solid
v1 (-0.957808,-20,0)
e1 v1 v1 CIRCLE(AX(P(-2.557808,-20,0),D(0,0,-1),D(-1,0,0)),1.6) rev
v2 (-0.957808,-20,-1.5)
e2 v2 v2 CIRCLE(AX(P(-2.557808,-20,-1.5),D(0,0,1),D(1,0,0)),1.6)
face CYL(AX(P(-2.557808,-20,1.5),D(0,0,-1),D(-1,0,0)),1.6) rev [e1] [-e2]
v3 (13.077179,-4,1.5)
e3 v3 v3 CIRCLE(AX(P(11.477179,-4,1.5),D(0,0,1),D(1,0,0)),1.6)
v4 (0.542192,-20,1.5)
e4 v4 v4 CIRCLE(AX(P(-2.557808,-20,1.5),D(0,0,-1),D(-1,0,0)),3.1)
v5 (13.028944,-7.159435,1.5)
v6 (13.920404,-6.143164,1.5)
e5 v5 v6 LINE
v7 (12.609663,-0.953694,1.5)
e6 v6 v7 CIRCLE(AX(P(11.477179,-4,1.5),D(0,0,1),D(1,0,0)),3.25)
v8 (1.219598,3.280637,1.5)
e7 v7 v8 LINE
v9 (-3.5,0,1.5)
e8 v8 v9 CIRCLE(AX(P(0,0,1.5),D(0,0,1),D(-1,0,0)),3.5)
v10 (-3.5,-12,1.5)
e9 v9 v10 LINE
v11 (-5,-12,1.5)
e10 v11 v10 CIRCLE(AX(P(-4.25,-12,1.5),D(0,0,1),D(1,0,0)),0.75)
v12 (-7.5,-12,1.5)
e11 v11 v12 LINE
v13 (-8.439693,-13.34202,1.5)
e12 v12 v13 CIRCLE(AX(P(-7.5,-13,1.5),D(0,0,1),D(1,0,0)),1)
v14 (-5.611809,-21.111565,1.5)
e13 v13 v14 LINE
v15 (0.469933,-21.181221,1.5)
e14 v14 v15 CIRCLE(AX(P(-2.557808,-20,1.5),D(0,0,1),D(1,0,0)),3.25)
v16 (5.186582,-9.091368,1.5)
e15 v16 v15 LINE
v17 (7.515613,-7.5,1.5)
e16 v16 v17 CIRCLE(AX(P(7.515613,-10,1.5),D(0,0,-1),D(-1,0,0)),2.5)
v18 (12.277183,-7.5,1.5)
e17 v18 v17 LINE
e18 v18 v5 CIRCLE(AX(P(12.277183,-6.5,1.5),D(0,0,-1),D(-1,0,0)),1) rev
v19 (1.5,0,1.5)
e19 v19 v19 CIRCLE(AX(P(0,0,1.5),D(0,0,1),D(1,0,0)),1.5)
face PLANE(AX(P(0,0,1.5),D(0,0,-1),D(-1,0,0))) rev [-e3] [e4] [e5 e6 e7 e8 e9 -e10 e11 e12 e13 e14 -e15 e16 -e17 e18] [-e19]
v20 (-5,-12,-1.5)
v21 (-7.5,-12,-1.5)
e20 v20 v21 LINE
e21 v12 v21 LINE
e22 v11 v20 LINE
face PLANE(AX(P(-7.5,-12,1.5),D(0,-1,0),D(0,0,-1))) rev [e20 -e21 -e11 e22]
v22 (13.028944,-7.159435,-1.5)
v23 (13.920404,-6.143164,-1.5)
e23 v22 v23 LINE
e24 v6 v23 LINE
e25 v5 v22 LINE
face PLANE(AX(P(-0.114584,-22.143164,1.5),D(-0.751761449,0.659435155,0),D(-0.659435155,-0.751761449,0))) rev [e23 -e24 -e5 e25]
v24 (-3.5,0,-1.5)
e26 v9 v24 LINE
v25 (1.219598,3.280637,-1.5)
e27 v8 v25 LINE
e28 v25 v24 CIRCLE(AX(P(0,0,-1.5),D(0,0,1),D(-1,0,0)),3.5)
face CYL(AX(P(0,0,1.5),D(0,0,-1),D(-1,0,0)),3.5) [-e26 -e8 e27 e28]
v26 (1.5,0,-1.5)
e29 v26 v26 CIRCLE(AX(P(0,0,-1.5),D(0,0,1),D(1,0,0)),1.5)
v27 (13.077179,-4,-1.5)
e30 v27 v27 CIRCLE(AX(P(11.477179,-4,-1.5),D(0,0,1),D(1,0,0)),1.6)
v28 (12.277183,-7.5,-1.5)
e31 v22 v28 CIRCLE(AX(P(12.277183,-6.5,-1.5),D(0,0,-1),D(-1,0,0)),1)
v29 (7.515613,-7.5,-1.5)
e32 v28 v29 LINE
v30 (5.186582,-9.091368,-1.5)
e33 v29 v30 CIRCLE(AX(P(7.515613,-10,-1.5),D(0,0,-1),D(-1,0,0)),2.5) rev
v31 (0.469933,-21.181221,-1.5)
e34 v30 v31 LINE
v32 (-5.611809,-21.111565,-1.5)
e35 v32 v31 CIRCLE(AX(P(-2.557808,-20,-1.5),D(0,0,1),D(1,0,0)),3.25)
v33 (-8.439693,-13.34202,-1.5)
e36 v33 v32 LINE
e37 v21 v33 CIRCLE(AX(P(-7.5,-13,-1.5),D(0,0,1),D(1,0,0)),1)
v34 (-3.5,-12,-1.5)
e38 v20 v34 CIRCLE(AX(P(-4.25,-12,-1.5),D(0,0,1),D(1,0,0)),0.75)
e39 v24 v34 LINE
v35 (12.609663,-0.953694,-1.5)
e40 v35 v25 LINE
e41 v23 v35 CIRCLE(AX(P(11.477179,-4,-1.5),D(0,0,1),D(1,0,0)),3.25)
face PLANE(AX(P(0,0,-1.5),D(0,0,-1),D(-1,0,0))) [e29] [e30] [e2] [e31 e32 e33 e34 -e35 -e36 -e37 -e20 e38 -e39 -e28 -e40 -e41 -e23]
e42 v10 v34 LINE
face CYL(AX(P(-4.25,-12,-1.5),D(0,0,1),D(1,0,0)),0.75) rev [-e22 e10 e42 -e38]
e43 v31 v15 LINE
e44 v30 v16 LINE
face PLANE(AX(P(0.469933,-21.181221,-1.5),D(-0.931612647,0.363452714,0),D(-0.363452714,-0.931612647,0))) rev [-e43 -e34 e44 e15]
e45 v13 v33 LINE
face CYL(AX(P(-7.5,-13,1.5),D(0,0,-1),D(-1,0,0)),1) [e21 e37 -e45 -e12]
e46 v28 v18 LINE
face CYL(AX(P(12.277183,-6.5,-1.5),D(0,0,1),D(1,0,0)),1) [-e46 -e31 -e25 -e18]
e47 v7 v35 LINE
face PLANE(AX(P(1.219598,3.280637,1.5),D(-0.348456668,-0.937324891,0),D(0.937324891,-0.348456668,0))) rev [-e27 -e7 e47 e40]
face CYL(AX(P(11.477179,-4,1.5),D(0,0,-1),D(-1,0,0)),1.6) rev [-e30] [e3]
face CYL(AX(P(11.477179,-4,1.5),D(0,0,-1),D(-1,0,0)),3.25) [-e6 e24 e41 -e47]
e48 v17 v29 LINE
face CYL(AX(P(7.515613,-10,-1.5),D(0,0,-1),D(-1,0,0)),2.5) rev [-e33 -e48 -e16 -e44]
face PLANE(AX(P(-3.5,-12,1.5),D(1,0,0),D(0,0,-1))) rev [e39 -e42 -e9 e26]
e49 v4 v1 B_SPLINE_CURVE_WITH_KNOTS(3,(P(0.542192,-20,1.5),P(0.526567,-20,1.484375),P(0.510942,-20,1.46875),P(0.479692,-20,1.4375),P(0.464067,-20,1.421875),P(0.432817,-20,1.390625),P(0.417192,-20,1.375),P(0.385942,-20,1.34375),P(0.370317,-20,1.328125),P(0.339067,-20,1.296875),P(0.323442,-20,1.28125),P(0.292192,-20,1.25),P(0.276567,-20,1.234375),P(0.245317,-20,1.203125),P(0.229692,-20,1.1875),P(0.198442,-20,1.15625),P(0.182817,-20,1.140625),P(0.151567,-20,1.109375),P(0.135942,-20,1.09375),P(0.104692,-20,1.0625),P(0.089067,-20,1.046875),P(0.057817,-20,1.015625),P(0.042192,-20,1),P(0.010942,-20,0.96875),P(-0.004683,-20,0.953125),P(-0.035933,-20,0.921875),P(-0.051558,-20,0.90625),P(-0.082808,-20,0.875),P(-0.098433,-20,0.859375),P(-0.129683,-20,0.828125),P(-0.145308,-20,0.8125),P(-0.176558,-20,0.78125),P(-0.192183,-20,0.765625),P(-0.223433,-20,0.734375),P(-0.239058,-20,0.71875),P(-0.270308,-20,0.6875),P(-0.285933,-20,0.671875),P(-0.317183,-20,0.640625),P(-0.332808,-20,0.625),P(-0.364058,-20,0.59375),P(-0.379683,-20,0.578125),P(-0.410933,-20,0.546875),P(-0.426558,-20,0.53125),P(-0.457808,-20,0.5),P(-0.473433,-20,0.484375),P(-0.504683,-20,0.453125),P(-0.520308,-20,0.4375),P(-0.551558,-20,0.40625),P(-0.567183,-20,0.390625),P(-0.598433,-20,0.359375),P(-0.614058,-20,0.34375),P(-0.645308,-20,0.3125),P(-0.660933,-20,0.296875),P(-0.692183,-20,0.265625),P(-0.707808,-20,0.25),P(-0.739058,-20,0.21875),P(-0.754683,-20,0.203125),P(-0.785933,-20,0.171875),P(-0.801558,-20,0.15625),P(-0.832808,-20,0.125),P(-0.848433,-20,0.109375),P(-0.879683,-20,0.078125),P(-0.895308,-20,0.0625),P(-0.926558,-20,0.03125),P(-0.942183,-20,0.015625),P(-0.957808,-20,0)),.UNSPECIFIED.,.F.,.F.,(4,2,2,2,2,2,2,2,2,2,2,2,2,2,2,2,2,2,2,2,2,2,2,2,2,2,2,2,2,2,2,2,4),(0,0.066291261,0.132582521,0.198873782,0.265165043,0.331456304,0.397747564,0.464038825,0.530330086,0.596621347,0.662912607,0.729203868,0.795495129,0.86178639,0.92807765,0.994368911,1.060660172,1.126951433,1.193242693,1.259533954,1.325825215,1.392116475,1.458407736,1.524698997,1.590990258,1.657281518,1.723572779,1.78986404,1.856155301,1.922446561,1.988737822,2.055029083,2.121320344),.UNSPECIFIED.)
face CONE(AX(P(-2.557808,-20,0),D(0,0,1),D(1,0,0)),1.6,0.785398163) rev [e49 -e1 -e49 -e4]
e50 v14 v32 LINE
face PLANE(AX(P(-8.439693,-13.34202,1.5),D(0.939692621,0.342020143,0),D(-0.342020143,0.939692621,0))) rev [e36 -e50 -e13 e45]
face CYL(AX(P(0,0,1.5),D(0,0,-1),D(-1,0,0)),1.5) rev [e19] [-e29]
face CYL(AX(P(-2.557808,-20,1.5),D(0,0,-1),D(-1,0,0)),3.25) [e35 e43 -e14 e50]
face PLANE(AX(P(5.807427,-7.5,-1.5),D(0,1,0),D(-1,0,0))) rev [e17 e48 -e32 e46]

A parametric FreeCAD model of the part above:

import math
import FreeCAD as App
import Part
import Sketcher

V = App.Vector
Q = App.Units.Quantity


def edges_at(feature, points):
    """Names of the edges that pass closest to the given points."""
    edges = feature.Shape.Edges
    near = lambda p: min(range(len(edges)), key=lambda i: edges[i].distToShape(Part.Vertex(*p))[0])
    return sorted({f"Edge{near(p) + 1}" for p in points})

doc = App.newDocument("Part")
body = doc.addObject("PartDesign::Body", "Body")

sketch1 = body.newObject("Sketcher::SketchObject", "Sketch")
sketch1.AttachmentSupport = (doc.getObject("XY_Plane"), [""])
sketch1.MapMode = "FlatFace"
sketch1.addGeometry(Part.LineSegment(V(-3.5, -12, 0), V(-7.5, -12, 0)), False)
sketch1.addGeometry(Part.ArcOfCircle(Part.Circle(V(-7.5, -13, 0), V(0, 0, 1), 1), math.radians(90), math.radians(200)), False)
sketch1.addGeometry(Part.LineSegment(V(-8.439693, -13.34202, 0), V(-5.611809, -21.111565, 0)), False)
sketch1.addGeometry(Part.ArcOfCircle(Part.Circle(V(-2.557808, -20, 0), V(0, 0, 1), 3.25), math.radians(-160), math.radians(-41.256809)), False)
sketch1.addGeometry(Part.LineSegment(V(-0.114584, -22.143164, 0), V(13.920404, -6.143164, 0)), False)
sketch1.addGeometry(Part.ArcOfCircle(Part.Circle(V(11.477179, -4, 0), V(0, 0, 1), 3.25), math.radians(-41.256809), math.radians(69.607053)), False)
sketch1.addGeometry(Part.LineSegment(V(12.609663, -0.953694, 0), V(1.219598, 3.280637, 0)), False)
sketch1.addGeometry(Part.ArcOfCircle(Part.Circle(V(0, 0, 0), V(0, 0, 1), 3.5), math.radians(69.607053), math.radians(180)), False)
sketch1.addGeometry(Part.LineSegment(V(-3.5, 0, 0), V(-3.5, -12, 0)), False)
sketch1.addGeometry(Part.Circle(V(-2.557808, -20, 0), V(0, 0, 1), 1.6), False)
sketch1.addGeometry(Part.Circle(V(11.477179, -4, 0), V(0, 0, 1), 1.6), False)
sketch1.addGeometry(Part.Circle(V(0, 0, 0), V(0, 0, 1), 1.5), False)
sketch1.addConstraint(Sketcher.Constraint("Tangent", 0, 2, 1, 1))
sketch1.addConstraint(Sketcher.Constraint("Tangent", 1, 2, 2, 1))
sketch1.addConstraint(Sketcher.Constraint("Tangent", 2, 2, 3, 1))
sketch1.addConstraint(Sketcher.Constraint("Tangent", 3, 2, 4, 1))
sketch1.addConstraint(Sketcher.Constraint("Tangent", 4, 2, 5, 1))
sketch1.addConstraint(Sketcher.Constraint("Tangent", 5, 2, 6, 1))
sketch1.addConstraint(Sketcher.Constraint("Tangent", 6, 2, 7, 1))
sketch1.addConstraint(Sketcher.Constraint("Tangent", 7, 2, 8, 1))
sketch1.addConstraint(Sketcher.Constraint("Coincident", 8, 2, 0, 1))
sketch1.addConstraint(Sketcher.Constraint("Horizontal", 0))
sketch1.addConstraint(Sketcher.Constraint("Vertical", 8))
sketch1.addConstraint(Sketcher.Constraint("Coincident", 7, 3, -1, 1))
sketch1.addConstraint(Sketcher.Constraint("Coincident", 11, 3, -1, 1))
sketch1.addConstraint(Sketcher.Constraint("Coincident", 9, 3, 3, 3))
sketch1.addConstraint(Sketcher.Constraint("Coincident", 10, 3, 5, 3))
sketch1.addConstraint(Sketcher.Constraint("Equal", 3, 5))
sketch1.addConstraint(Sketcher.Constraint("Equal", 9, 10))
sketch1.addConstraint(Sketcher.Constraint("Diameter", 11, 3.0))
sketch1.addConstraint(Sketcher.Constraint("Radius", 1, 1.0))
sketch1.addConstraint(Sketcher.Constraint("Diameter", 9, 3.2))
sketch1.addConstraint(Sketcher.Constraint("Radius", 7, 3.5))
sketch1.addConstraint(Sketcher.Constraint("DistanceX", 0, 2, 0, 1, 4.0))
sketch1.addConstraint(Sketcher.Constraint("DistanceY", 8, 2, 8, 1, 12.0))
sketch1.addConstraint(Sketcher.Constraint("Angle", 2, Q("-70 deg")))
sketch1.addConstraint(Sketcher.Constraint("Radius", 3, 3.25))
sketch1.addConstraint(Sketcher.Constraint("DistanceY", 3, 3, -1, 1, 20.0))
sketch1.addConstraint(Sketcher.Constraint("DistanceY", 5, 3, -1, 1, 4.0))
sketch1.addConstraint(Sketcher.Constraint("DistanceX", -1, 1, 6, 2, 1.219598))
pad1 = body.newObject("PartDesign::Pad", "Pad")
pad1.Profile = sketch1
pad1.Length = 3
pad1.Midplane = True
doc.recompute()

chamfer = body.newObject("PartDesign::Chamfer", "Chamfer")
chamfer.Base = (pad1, edges_at(pad1, [(-4.158, -20, 1.5)]))
chamfer.Size = 1.5

sketch2 = body.newObject("Sketcher::SketchObject", "Sketch001")
sketch2.AttachmentSupport = (doc.getObject("XY_Plane"), [""])
sketch2.MapMode = "FlatFace"
sketch2.AttachmentOffset = App.Placement(V(0, 0, 1.5), App.Rotation())
sketch2.addGeometry(Part.Circle(V(-4.25, -12, 0), V(0, 0, 1), 0.75), False)
sketch2.addConstraint(Sketcher.Constraint("Diameter", 0, 1.5))
sketch2.addConstraint(Sketcher.Constraint("DistanceY", 0, 3, -1, 1, 12.0))
sketch2.addConstraint(Sketcher.Constraint("DistanceX", 0, 3, -1, 1, 4.25))
pocket1 = body.newObject("PartDesign::Pocket", "Pocket")
pocket1.Profile = sketch2
pocket1.Type = "ThroughAll"

sketch3 = body.newObject("Sketcher::SketchObject", "Sketch002")
sketch3.AttachmentSupport = (doc.getObject("XY_Plane"), [""])
sketch3.MapMode = "FlatFace"
sketch3.AttachmentOffset = App.Placement(V(0, 0, 1.5), App.Rotation())
sketch3.addGeometry(Part.LineSegment(V(12.730205, -7.5, 0), V(5.807427, -7.5, 0)), False)
sketch3.addGeometry(Part.LineSegment(V(5.807427, -7.5, 0), V(0.469933, -21.181221, 0)), False)
sketch3.addGeometry(Part.ArcOfCircle(Part.Circle(V(-2.557808, -20, 0), V(0, 0, 1), 3.25), math.radians(-41.256809), math.radians(-21.312391)), False)
sketch3.addGeometry(Part.LineSegment(V(-0.114584, -22.143164, 0), V(12.730205, -7.5, 0)), False)
sketch3.addConstraint(Sketcher.Constraint("Coincident", 0, 2, 1, 1))
sketch3.addConstraint(Sketcher.Constraint("Tangent", 1, 2, 2, 2))
sketch3.addConstraint(Sketcher.Constraint("Tangent", 2, 1, 3, 1))
sketch3.addConstraint(Sketcher.Constraint("Coincident", 3, 2, 0, 1))
sketch3.addConstraint(Sketcher.Constraint("Horizontal", 0))
sketch3.addConstraint(Sketcher.Constraint("Radius", 2, 3.25))
sketch3.addConstraint(Sketcher.Constraint("DistanceY", 2, 3, -1, 1, 20.0))
sketch3.addConstraint(Sketcher.Constraint("DistanceY", 0, 2, -1, 1, 7.5))
sketch3.addConstraint(Sketcher.Constraint("DistanceX", 0, 2, 0, 1, 6.922779))
sketch3.addConstraint(Sketcher.Constraint("Distance", 3, 19.478472))
sketch3.addConstraint(Sketcher.Constraint("DistanceX", 2, 3, -1, 1, 2.557808))
pocket2 = body.newObject("PartDesign::Pocket", "Pocket001")
pocket2.Profile = sketch3
pocket2.Type = "ThroughAll"
doc.recompute()

fillet = body.newObject("PartDesign::Fillet", "Fillet")
fillet.Base = (pocket2, edges_at(pocket2, [(5.807, -7.5, 0)]))
fillet.Radius = 2.5
doc.recompute()

fillet2 = body.newObject("PartDesign::Fillet", "Fillet001")
fillet2.Base = (fillet, edges_at(fillet, [(12.73, -7.5, 0)]))
fillet2.Radius = 1

doc.recompute()
